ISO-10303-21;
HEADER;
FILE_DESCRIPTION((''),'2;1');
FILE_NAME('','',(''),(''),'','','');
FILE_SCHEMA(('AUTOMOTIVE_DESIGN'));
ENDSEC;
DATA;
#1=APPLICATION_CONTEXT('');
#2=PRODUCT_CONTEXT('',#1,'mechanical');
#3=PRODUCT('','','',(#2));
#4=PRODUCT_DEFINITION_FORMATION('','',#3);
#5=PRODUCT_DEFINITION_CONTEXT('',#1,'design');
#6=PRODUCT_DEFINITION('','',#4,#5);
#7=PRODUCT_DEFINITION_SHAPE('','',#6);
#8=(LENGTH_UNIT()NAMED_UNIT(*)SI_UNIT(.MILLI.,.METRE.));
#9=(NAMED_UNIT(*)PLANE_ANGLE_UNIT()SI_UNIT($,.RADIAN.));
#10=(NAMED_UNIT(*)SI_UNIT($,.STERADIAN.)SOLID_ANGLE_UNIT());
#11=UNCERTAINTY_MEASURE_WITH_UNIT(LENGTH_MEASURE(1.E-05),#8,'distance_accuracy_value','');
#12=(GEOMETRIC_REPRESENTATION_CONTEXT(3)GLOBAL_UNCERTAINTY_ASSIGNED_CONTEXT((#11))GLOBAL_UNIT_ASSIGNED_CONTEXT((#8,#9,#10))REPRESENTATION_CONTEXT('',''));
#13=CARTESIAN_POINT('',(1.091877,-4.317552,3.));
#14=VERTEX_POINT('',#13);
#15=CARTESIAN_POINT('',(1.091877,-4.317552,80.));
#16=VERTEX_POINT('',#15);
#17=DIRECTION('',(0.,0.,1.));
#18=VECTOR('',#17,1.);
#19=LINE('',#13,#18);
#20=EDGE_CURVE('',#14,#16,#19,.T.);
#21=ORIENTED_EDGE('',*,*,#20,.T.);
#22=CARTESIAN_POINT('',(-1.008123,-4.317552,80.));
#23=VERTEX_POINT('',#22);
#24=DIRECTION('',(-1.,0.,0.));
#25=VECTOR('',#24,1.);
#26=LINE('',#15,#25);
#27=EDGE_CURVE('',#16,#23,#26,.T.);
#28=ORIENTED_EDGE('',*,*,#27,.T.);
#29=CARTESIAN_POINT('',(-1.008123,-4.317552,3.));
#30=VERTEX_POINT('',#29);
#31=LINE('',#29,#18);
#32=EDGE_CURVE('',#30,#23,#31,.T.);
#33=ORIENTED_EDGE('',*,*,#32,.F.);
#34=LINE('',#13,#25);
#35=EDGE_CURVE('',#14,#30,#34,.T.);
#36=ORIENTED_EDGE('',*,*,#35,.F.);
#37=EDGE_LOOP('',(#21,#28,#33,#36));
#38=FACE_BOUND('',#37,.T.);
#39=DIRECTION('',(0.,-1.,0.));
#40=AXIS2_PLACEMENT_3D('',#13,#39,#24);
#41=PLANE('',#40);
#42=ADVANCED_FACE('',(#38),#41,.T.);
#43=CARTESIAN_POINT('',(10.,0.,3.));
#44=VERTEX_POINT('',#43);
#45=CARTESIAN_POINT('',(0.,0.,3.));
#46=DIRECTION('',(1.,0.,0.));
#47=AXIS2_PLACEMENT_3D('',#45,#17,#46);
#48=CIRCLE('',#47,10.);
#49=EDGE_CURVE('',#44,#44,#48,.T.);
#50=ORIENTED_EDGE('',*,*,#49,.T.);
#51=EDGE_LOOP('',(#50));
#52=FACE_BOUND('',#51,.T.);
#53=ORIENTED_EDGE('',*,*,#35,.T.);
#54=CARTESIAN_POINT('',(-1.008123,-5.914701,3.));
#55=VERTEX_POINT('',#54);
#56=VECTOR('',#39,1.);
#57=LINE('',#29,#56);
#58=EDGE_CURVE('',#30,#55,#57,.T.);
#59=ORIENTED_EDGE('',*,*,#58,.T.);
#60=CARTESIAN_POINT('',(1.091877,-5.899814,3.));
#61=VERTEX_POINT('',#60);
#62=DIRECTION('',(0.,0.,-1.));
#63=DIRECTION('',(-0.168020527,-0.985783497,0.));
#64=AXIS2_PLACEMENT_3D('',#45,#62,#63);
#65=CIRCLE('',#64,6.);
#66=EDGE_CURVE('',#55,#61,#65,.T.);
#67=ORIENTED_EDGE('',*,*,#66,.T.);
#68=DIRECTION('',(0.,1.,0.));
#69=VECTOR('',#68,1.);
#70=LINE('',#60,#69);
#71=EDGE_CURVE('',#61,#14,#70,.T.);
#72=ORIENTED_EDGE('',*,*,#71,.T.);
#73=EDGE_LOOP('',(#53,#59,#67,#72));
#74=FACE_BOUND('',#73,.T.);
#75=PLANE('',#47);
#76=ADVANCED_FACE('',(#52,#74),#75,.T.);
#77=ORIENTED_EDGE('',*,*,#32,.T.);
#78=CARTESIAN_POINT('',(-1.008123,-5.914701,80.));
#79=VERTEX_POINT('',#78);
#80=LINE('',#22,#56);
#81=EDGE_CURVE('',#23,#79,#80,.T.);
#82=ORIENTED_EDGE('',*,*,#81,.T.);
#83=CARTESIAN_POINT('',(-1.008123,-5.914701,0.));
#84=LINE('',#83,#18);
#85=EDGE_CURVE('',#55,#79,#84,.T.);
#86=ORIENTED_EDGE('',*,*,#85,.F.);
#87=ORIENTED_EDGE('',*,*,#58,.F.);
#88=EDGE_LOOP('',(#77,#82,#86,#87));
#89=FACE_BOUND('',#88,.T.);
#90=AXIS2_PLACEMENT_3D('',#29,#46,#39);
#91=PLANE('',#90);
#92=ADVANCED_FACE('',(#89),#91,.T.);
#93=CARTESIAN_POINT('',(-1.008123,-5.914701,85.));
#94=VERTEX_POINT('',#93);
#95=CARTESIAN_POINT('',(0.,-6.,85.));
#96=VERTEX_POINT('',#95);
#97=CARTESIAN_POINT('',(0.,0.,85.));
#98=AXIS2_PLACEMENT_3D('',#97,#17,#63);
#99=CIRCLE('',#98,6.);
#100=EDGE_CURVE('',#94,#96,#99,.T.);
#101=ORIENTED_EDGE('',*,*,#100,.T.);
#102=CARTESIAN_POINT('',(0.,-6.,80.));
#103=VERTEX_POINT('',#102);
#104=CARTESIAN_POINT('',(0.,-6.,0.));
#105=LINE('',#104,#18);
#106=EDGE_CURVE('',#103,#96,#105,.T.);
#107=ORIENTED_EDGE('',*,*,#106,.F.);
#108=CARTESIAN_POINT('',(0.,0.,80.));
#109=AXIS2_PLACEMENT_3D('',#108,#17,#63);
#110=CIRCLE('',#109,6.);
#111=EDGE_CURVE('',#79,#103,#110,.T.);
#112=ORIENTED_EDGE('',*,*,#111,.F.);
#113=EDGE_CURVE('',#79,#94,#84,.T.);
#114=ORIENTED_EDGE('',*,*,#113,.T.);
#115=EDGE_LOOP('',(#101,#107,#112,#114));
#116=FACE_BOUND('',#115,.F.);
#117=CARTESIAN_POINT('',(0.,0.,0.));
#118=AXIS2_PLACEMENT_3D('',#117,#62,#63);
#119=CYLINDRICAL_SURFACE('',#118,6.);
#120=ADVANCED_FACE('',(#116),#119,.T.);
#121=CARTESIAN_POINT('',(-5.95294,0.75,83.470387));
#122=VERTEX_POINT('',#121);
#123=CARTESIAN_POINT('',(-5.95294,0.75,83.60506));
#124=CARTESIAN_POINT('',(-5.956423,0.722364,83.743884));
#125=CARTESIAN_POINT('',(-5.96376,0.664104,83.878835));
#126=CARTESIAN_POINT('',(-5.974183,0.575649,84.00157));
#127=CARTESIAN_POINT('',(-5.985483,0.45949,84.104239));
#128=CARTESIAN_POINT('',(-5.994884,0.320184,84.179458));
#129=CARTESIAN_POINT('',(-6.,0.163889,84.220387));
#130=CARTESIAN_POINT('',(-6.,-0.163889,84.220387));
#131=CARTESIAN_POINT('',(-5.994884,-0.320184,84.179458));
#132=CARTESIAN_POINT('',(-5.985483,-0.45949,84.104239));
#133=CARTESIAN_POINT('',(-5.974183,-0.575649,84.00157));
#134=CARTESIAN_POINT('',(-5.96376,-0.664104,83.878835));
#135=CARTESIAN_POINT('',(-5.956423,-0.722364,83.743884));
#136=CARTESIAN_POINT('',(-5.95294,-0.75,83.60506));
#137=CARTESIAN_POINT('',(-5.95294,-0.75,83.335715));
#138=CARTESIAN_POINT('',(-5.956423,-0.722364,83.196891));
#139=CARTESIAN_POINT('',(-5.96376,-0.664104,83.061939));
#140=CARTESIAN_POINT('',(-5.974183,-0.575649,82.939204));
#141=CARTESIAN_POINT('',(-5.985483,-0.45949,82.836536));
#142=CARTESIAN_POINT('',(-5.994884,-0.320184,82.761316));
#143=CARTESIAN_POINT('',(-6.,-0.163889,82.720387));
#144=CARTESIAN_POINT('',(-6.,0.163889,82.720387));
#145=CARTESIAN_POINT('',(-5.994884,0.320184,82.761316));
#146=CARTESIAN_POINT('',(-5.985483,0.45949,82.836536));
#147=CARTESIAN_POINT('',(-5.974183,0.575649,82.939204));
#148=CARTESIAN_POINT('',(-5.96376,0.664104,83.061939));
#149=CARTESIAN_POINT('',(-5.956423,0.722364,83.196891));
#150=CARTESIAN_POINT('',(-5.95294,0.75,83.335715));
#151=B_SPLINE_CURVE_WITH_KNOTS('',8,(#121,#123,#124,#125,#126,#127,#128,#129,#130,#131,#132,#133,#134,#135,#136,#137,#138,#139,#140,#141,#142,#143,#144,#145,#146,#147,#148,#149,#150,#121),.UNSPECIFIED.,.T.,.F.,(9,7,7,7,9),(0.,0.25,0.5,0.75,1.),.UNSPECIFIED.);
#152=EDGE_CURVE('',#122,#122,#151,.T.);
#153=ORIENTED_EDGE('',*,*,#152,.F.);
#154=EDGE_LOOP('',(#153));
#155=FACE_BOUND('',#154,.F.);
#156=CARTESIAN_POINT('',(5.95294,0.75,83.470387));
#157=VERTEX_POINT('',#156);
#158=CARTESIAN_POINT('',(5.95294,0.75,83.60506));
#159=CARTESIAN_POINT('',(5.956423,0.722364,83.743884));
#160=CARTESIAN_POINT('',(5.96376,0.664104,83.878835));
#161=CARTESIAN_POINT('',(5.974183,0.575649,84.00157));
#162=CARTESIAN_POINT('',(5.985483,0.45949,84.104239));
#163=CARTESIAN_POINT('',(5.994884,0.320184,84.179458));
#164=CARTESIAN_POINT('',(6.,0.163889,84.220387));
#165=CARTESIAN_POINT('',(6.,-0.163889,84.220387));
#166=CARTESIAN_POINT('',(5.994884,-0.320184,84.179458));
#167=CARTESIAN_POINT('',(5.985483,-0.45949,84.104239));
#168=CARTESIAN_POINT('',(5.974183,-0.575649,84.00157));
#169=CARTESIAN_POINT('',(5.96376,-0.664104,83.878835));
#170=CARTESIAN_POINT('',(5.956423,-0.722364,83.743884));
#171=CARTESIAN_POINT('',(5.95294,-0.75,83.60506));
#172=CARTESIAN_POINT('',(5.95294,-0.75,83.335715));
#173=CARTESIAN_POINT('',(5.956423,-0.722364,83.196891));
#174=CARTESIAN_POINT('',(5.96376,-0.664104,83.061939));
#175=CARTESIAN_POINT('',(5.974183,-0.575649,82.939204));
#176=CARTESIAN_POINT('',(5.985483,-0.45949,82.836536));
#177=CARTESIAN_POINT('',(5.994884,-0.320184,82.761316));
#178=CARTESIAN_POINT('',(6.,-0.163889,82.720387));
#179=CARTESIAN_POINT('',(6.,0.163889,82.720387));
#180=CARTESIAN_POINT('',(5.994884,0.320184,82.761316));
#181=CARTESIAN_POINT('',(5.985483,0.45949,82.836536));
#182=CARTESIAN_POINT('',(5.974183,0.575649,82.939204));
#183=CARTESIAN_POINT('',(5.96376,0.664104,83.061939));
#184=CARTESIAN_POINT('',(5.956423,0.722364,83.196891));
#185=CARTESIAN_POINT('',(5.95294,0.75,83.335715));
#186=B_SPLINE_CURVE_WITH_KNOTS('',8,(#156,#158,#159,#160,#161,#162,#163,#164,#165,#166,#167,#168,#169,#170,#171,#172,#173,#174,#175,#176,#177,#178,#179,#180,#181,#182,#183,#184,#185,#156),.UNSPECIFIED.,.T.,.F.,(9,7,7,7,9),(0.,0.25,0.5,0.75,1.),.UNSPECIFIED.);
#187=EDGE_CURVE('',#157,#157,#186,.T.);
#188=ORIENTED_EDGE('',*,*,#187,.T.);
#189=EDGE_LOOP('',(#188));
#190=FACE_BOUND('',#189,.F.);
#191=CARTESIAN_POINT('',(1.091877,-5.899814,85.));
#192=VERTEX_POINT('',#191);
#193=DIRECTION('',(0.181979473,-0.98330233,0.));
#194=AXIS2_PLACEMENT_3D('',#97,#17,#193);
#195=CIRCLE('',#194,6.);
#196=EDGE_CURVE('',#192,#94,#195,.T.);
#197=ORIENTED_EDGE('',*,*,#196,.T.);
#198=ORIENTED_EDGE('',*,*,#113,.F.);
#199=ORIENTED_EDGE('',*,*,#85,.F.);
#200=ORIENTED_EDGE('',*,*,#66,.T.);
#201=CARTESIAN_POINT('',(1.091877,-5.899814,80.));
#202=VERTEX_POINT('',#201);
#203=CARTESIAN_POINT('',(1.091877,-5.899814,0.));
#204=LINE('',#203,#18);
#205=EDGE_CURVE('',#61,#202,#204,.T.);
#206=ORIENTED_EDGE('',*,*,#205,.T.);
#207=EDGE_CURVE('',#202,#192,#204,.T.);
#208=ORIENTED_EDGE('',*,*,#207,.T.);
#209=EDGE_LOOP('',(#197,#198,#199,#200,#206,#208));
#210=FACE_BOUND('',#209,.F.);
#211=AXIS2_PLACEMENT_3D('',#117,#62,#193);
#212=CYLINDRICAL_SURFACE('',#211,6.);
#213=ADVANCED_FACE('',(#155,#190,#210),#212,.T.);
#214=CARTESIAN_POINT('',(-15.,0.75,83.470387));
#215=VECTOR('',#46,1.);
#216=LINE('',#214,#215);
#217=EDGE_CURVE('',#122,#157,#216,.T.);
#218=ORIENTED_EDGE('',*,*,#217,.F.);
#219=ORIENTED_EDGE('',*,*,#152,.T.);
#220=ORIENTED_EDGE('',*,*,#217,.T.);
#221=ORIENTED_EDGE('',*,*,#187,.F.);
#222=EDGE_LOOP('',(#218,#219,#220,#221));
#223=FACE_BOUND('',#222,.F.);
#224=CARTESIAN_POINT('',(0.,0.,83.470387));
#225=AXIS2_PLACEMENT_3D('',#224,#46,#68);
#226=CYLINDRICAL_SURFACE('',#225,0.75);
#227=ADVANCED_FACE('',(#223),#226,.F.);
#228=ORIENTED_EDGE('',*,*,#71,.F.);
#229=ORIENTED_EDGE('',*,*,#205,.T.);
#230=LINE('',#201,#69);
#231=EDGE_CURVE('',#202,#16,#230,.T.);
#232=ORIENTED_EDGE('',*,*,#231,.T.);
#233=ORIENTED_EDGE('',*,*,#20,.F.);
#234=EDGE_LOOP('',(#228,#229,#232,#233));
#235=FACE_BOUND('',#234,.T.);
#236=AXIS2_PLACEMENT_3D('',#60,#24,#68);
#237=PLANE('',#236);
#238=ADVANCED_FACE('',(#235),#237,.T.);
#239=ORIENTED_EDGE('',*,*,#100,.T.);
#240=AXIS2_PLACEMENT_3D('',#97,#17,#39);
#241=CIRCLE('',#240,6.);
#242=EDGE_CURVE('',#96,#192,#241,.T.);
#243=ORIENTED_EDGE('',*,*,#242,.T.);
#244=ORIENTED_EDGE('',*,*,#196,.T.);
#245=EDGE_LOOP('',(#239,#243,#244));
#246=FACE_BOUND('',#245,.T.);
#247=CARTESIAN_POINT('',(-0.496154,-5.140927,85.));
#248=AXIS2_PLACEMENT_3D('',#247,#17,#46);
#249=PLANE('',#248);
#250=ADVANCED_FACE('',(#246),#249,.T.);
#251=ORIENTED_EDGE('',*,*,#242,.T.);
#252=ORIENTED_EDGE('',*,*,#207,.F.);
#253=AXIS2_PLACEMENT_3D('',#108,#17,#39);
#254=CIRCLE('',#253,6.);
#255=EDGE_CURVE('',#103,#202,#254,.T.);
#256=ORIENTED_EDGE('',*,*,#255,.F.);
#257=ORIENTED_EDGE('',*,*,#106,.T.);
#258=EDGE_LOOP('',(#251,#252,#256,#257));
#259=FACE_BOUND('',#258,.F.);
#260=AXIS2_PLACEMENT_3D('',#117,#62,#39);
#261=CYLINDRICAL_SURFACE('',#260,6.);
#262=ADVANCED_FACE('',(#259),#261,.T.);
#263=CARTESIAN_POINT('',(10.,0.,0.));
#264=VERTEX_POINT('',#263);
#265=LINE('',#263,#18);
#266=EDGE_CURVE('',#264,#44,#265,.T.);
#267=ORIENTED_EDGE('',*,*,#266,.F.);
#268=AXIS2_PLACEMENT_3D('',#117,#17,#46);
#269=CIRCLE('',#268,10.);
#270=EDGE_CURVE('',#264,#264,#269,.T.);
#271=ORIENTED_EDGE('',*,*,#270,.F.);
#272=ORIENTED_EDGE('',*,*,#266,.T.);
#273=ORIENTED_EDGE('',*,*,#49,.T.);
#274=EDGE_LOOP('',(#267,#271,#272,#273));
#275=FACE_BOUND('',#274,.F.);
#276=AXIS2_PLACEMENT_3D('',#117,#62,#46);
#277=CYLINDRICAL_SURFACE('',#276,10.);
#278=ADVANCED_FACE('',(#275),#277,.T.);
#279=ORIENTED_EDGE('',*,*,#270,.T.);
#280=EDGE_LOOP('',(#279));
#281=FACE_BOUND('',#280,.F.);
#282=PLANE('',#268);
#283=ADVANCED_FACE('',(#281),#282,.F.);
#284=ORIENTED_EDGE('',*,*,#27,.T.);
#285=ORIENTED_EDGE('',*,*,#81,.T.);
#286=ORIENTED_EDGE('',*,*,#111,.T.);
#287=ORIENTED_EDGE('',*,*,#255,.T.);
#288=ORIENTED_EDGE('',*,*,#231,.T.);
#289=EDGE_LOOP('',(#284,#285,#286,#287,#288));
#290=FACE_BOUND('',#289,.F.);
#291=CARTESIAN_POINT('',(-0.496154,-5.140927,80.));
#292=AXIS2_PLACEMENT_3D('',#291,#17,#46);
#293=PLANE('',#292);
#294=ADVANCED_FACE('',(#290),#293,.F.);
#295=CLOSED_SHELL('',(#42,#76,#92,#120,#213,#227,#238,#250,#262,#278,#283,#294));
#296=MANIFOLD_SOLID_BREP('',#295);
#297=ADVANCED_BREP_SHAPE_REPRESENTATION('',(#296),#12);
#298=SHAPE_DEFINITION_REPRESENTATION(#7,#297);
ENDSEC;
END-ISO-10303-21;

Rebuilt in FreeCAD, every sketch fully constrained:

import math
import FreeCAD as App
import Part
import Sketcher

V = App.Vector

doc = App.newDocument("Part")
body = doc.addObject("PartDesign::Body", "Body")

# Sketch on XY plane
sketch1 = body.newObject("Sketcher::SketchObject", "Sketch")
sketch1.AttachmentSupport = (doc.getObject("XY_Plane"), [""])
sketch1.MapMode = "FlatFace"
sketch1.addGeometry(Part.ArcOfCircle(Part.Circle(V(0, 0, 0), V(0, 0, 1), 6), math.radians(-90), math.radians(-79.51)), False)
sketch1.addGeometry(Part.ArcOfCircle(Part.Circle(V(0, 0, 0), V(0, 0, 1), 6), math.radians(-80), math.radians(260)), False)
sketch1.addGeometry(Part.ArcOfCircle(Part.Circle(V(0, 0, 0), V(0, 0, 1), 6), math.radians(-99.67), math.radians(-90)), False)
sketch1.addConstraint(Sketcher.Constraint("Tangent", 0, 2, 1, 1))
sketch1.addConstraint(Sketcher.Constraint("Tangent", 1, 2, 2, 1))
sketch1.addConstraint(Sketcher.Constraint("Tangent", 2, 2, 0, 1))
sketch1.addConstraint(Sketcher.Constraint("Coincident", 0, 3, -1, 1))
sketch1.addConstraint(Sketcher.Constraint("PointOnObject", 2, 2, -2))
sketch1.addConstraint(Sketcher.Constraint("Radius", 0, 6.0))
sketch1.addConstraint(Sketcher.Constraint("DistanceX", 1, 2, 0, 2, 2.1))
sketch1.addConstraint(Sketcher.Constraint("DistanceY", 1, 2, -1, 1, 5.914701))
pad1 = body.newObject("PartDesign::Pad", "Pad")
pad1.Profile = sketch1
pad1.Length = 85

# Sketch on XY plane
sketch2 = body.newObject("Sketcher::SketchObject", "Sketch001")
sketch2.AttachmentSupport = (doc.getObject("XY_Plane"), [""])
sketch2.MapMode = "FlatFace"
sketch2.addGeometry(Part.Circle(V(0, 0, 0), V(0, 0, 1), 10), False)
sketch2.addGeometry(Part.ArcOfCircle(Part.Circle(V(0, 0, 0), V(0, 0, 1), 6), math.radians(-99.67), math.radians(-90)), False)
sketch2.addGeometry(Part.ArcOfCircle(Part.Circle(V(0, 0, 0), V(0, 0, 1), 6), math.radians(-80), math.radians(260)), False)
sketch2.addGeometry(Part.ArcOfCircle(Part.Circle(V(0, 0, 0), V(0, 0, 1), 6), math.radians(-90), math.radians(-79.51)), False)
sketch2.addConstraint(Sketcher.Constraint("Tangent", 1, 1, 2, 2))
sketch2.addConstraint(Sketcher.Constraint("Tangent", 2, 1, 3, 2))
sketch2.addConstraint(Sketcher.Constraint("Tangent", 3, 1, 1, 2))
sketch2.addConstraint(Sketcher.Constraint("Coincident", 0, 3, -1, 1))
sketch2.addConstraint(Sketcher.Constraint("Coincident", 1, 3, -1, 1))
sketch2.addConstraint(Sketcher.Constraint("PointOnObject", 3, 1, -2))
sketch2.addConstraint(Sketcher.Constraint("Diameter", 0, 20.0))
sketch2.addConstraint(Sketcher.Constraint("Radius", 1, 6.0))
sketch2.addConstraint(Sketcher.Constraint("DistanceX", 1, 1, 2, 1, 2.1))
sketch2.addConstraint(Sketcher.Constraint("DistanceY", 1, 1, -1, 1, 5.914701))
pad2 = body.newObject("PartDesign::Pad", "Pad001")
pad2.Profile = sketch2
pad2.Length = 3

# Sketch on YZ plane
sketch3 = body.newObject("Sketcher::SketchObject", "Sketch002")
sketch3.AttachmentSupport = (doc.getObject("YZ_Plane"), [""])
sketch3.MapMode = "FlatFace"
sketch3.addGeometry(Part.Circle(V(0, 83.5, 0), V(0, 0, 1), 0.8), False)
sketch3.addConstraint(Sketcher.Constraint("PointOnObject", 0, 3, -2))
sketch3.addConstraint(Sketcher.Constraint("Diameter", 0, 1.5))
sketch3.addConstraint(Sketcher.Constraint("DistanceY", -1, 1, 0, 3, 83.470387))
pocket1 = body.newObject("PartDesign::Pocket", "Pocket")
pocket1.Profile = sketch3
pocket1.Length = 30
pocket1.Midplane = True

# Sketch on XY plane
sketch4 = body.newObject("Sketcher::SketchObject", "Sketch003")
sketch4.AttachmentSupport = (doc.getObject("XY_Plane"), [""])
sketch4.MapMode = "FlatFace"
sketch4.AttachmentOffset = App.Placement(V(0, 0, 3), App.Rotation())
sketch4.addGeometry(Part.LineSegment(V(-1, -4.3, 0), V(-1, -5.9, 0)), False)
sketch4.addGeometry(Part.ArcOfCircle(Part.Circle(V(0, 0, 0), V(0, 0, 1), 6), math.radians(-99.67), math.radians(-90)), False)
sketch4.addGeometry(Part.ArcOfCircle(Part.Circle(V(0, 0, 0), V(0, 0, 1), 6), math.radians(-90), math.radians(-79.51)), False)
sketch4.addGeometry(Part.LineSegment(V(1.1, -5.9, 0), V(1.1, -4.3, 0)), False)
sketch4.addGeometry(Part.LineSegment(V(1.1, -4.3, 0), V(-1, -4.3, 0)), False)
sketch4.addConstraint(Sketcher.Constraint("Coincident", 0, 2, 1, 1))
sketch4.addConstraint(Sketcher.Constraint("Tangent", 1, 2, 2, 1))
sketch4.addConstraint(Sketcher.Constraint("Coincident", 2, 2, 3, 1))
sketch4.addConstraint(Sketcher.Constraint("Coincident", 3, 2, 4, 1))
sketch4.addConstraint(Sketcher.Constraint("Coincident", 4, 2, 0, 1))
sketch4.addConstraint(Sketcher.Constraint("Vertical", 0))
sketch4.addConstraint(Sketcher.Constraint("Vertical", 3))
sketch4.addConstraint(Sketcher.Constraint("Horizontal", 4))
sketch4.addConstraint(Sketcher.Constraint("Coincident", 1, 3, -1, 1))
sketch4.addConstraint(Sketcher.Constraint("Equal", 1, 2))
sketch4.addConstraint(Sketcher.Constraint("PointOnObject", 1, 2, -2))
sketch4.addConstraint(Sketcher.Constraint("Radius", 1, 6.0))
sketch4.addConstraint(Sketcher.Constraint("DistanceX", 4, 2, 4, 1, 2.1))
sketch4.addConstraint(Sketcher.Constraint("DistanceY", 0, 2, 0, 1, 1.597149))
sketch4.addConstraint(Sketcher.Constraint("DistanceY", 3, 1, 3, 2, 1.582262))
pocket2 = body.newObject("PartDesign::Pocket", "Pocket001")
pocket2.Profile = sketch4
pocket2.Length = 77
pocket2.Reversed = True

doc.recompute()
